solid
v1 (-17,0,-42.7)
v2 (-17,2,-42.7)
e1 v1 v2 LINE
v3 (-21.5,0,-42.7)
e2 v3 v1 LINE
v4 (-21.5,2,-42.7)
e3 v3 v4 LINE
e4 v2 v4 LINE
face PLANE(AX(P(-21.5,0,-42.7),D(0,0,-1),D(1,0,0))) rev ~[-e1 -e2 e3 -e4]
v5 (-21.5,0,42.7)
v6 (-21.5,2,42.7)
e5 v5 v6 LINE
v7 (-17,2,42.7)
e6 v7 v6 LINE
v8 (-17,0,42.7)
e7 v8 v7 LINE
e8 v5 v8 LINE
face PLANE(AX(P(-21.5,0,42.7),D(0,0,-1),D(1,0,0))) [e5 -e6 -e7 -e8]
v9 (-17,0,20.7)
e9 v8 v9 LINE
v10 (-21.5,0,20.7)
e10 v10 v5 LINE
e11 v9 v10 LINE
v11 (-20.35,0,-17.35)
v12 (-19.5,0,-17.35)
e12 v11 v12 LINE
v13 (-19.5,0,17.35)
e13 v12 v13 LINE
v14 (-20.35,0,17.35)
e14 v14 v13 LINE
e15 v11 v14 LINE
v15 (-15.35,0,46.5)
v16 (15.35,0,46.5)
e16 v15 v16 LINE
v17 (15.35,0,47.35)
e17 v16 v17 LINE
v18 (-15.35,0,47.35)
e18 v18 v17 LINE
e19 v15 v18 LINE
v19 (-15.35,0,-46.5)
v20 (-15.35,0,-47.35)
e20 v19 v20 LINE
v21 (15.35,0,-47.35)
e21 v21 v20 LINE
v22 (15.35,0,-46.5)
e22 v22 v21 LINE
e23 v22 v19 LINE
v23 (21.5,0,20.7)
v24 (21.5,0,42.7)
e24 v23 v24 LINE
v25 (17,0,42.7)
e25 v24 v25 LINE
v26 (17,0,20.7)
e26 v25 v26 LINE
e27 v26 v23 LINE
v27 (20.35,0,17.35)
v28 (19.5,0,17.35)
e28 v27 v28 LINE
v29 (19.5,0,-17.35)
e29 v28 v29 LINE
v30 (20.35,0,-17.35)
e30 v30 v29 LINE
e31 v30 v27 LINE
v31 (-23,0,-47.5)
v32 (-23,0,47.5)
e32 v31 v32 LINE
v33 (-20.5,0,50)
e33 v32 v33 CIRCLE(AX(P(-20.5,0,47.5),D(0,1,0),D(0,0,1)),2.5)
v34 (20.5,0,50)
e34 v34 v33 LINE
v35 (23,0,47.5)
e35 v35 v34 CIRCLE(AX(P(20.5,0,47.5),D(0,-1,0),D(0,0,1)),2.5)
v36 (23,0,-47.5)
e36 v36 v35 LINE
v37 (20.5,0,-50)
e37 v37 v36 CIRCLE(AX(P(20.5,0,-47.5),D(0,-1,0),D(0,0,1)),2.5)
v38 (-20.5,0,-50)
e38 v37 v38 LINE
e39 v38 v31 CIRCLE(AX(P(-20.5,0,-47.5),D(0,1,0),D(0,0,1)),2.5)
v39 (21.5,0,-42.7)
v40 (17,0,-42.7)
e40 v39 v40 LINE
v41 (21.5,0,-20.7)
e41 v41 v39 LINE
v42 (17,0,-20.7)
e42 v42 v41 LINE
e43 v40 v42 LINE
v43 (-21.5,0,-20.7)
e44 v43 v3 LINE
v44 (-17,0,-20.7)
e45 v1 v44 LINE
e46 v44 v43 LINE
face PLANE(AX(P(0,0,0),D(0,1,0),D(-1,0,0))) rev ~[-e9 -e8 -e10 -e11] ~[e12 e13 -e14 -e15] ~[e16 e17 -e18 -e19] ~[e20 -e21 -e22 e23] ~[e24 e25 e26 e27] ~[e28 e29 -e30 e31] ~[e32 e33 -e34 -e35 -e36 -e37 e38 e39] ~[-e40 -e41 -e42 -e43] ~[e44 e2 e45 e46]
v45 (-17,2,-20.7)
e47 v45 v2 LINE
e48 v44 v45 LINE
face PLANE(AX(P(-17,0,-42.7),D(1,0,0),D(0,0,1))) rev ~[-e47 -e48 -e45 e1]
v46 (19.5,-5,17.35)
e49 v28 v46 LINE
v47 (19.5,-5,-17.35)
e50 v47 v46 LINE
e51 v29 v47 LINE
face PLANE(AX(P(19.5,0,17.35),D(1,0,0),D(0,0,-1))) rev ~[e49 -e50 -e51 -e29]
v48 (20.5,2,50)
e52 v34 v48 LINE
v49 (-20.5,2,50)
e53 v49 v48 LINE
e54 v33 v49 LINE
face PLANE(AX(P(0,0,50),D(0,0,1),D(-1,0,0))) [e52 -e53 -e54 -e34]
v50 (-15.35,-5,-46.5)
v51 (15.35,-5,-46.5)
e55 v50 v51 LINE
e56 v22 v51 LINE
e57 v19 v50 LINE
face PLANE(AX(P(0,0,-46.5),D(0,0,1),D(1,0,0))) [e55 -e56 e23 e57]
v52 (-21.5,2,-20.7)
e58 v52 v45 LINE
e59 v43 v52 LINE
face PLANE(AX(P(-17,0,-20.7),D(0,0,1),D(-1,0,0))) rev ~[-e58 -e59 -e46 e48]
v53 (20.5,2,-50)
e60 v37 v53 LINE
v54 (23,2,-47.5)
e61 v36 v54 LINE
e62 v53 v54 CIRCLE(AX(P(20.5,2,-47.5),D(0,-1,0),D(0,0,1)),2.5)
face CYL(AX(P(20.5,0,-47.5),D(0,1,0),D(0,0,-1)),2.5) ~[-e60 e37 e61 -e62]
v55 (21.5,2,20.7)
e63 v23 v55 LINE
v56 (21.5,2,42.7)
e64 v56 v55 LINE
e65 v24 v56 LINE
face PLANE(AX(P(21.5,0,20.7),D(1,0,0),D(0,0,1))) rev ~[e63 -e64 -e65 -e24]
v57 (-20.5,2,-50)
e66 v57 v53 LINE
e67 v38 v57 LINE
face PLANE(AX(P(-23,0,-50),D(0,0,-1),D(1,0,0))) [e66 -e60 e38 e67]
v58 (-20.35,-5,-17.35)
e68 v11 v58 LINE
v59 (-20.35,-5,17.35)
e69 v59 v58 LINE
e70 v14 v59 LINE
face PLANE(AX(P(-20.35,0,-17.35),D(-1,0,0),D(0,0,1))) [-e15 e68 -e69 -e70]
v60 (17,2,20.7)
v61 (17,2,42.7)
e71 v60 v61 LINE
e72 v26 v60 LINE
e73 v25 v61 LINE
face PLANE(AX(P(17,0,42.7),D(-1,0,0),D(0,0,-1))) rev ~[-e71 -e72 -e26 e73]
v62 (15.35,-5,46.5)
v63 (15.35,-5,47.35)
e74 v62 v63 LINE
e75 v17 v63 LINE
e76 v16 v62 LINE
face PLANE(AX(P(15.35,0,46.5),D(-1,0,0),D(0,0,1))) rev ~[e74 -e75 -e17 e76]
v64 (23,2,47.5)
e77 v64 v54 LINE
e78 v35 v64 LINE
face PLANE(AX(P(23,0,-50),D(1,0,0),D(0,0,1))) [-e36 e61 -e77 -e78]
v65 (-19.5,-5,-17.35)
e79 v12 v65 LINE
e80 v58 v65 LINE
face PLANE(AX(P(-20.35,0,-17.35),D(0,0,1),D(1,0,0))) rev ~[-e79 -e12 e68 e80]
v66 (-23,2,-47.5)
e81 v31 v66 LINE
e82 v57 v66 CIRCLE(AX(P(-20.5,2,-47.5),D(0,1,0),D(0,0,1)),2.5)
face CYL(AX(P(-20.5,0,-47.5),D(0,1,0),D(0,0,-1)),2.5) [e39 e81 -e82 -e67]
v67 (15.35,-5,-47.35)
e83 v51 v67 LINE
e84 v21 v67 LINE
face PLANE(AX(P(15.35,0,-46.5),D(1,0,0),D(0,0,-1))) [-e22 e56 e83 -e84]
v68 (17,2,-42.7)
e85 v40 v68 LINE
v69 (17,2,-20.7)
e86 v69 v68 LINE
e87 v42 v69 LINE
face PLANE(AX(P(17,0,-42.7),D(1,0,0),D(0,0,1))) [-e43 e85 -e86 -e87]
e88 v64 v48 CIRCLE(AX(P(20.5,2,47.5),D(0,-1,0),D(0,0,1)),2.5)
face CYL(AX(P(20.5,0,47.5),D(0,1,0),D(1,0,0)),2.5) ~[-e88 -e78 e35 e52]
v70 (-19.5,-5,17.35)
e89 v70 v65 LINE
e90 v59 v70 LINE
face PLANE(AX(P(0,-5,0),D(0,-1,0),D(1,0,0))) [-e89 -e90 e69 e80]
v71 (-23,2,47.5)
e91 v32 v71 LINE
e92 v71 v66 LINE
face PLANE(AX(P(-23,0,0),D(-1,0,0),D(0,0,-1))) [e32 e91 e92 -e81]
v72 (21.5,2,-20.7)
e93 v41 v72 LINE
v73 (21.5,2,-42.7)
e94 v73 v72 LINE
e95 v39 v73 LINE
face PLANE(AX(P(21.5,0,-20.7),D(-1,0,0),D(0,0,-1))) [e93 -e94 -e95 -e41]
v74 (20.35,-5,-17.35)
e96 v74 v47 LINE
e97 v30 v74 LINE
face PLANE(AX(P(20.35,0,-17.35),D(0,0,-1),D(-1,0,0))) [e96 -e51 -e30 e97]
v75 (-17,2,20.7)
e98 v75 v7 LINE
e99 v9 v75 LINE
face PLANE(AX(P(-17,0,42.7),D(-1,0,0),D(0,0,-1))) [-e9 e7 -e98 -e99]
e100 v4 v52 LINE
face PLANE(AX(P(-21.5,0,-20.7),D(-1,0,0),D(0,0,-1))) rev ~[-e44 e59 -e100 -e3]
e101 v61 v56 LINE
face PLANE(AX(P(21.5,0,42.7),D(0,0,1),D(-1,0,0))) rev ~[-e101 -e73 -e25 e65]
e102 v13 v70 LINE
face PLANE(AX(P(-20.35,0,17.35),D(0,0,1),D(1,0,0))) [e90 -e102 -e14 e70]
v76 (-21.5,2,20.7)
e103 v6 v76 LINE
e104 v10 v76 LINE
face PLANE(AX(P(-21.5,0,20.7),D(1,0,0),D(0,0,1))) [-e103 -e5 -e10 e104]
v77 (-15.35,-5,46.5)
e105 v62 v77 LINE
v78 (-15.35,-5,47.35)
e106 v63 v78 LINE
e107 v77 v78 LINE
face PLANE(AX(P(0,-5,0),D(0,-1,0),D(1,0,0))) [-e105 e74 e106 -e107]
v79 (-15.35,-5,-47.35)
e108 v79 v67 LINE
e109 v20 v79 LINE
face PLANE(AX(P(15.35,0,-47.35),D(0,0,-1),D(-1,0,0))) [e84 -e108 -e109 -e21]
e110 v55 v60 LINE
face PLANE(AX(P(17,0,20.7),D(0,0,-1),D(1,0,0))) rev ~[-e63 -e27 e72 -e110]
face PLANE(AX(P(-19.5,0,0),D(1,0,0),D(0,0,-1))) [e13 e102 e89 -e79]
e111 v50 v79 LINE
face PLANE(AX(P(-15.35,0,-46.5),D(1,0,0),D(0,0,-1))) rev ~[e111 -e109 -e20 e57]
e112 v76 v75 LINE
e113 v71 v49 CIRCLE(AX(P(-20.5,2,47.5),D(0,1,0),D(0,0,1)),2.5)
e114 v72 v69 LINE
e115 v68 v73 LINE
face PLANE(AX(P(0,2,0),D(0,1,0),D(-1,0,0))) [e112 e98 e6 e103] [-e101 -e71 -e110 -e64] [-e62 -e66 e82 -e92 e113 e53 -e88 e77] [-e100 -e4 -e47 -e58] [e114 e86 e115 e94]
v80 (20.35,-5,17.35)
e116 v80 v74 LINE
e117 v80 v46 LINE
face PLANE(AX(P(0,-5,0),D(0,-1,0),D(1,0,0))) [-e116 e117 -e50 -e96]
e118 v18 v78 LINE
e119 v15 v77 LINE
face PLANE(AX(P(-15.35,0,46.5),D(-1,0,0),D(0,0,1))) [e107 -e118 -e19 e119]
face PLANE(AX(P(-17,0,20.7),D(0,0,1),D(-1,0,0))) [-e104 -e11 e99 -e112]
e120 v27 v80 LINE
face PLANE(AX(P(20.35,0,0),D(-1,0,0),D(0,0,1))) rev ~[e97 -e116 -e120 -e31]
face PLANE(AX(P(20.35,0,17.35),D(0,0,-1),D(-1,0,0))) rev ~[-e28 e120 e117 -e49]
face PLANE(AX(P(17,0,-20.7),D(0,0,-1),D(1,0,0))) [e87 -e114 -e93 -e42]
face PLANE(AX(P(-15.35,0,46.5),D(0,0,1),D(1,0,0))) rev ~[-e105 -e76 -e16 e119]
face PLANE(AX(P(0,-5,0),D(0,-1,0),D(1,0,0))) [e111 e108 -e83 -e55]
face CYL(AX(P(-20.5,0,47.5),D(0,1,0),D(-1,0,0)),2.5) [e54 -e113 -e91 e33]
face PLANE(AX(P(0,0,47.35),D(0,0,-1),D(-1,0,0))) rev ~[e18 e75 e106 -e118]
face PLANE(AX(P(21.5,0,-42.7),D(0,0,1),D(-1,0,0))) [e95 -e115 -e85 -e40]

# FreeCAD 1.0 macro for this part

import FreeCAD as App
import Part
import Sketcher
Q = App.Units.Quantity


def edges_at(feature, points):
    """Names of the edges that pass closest to the given points."""
    edges = feature.Shape.Edges
    near = lambda p: min(range(len(edges)), key=lambda i: edges[i].distToShape(Part.Vertex(*p))[0])
    return sorted({f"Edge{near(p) + 1}" for p in points})

doc = App.newDocument("Part")
body = doc.addObject("PartDesign::Body", "Body")

sketch1 = body.newObject("Sketcher::SketchObject", "Sketch")
sketch1.AttachmentSupport = (doc.getObject("XZ_Plane"), [""])
sketch1.MapMode = "FlatFace"
sketch1.addGeometry([
    Part.LineSegment(App.Vector(-23, -50, 0), App.Vector(-23, 50, 0)),
    Part.LineSegment(App.Vector(-23, 50, 0), App.Vector(23, 50, 0)),
    Part.LineSegment(App.Vector(23, 50, 0), App.Vector(23, -50, 0)),
    Part.LineSegment(App.Vector(23, -50, 0), App.Vector(-23, -50, 0)),
], False)
sketch1.addConstraint([
    Sketcher.Constraint("Coincident", 0, 2, 1, 1),
    Sketcher.Constraint("Coincident", 1, 2, 2, 1),
    Sketcher.Constraint("Coincident", 2, 2, 3, 1),
    Sketcher.Constraint("Coincident", 3, 2, 0, 1),
    Sketcher.Constraint("Vertical", 0),
    Sketcher.Constraint("Horizontal", 1),
    Sketcher.Constraint("Vertical", 2),
    Sketcher.Constraint("Horizontal", 3),
    Sketcher.Constraint("Symmetric", 0, 2, 2, 2, -1, 1),
    Sketcher.Constraint("DistanceX", 1, 1, 1, 2, Q("46 mm")),
    Sketcher.Constraint("DistanceY", 0, 1, 0, 2, Q("100 mm")),
])
pad1 = body.newObject("PartDesign::Pad", "Pad")
pad1.Profile = sketch1
pad1.Length = 2
pad1.Reversed = True
doc.recompute()

fillet = body.newObject("PartDesign::Fillet", "Fillet")
fillet.Base = (pad1, edges_at(pad1, [
    (-23, 1, -50),
    (-23, 1, 50),
    (23, 1, -50),
    (23, 1, 50),
]))
fillet.Radius = 2.5

sketch2 = body.newObject("Sketcher::SketchObject", "Sketch001")
sketch2.AttachmentSupport = (doc.getObject("XZ_Plane"), [""])
sketch2.MapMode = "FlatFace"
sketch2.addGeometry([
    Part.LineSegment(App.Vector(17, -42.7, 0), App.Vector(21.5, -42.7, 0)),
    Part.LineSegment(App.Vector(21.5, -42.7, 0), App.Vector(21.5, -20.7, 0)),
    Part.LineSegment(App.Vector(21.5, -20.7, 0), App.Vector(17, -20.7, 0)),
    Part.LineSegment(App.Vector(17, -20.7, 0), App.Vector(17, -42.7, 0)),
    Part.LineSegment(App.Vector(-21.5, -20.7, 0), App.Vector(-21.5, -42.7, 0)),
    Part.LineSegment(App.Vector(-21.5, -42.7, 0), App.Vector(-17, -42.7, 0)),
    Part.LineSegment(App.Vector(-17, -42.7, 0), App.Vector(-17, -20.7, 0)),
    Part.LineSegment(App.Vector(-17, -20.7, 0), App.Vector(-21.5, -20.7, 0)),
    Part.LineSegment(App.Vector(21.5, 20.7, 0), App.Vector(21.5, 42.7, 0)),
    Part.LineSegment(App.Vector(21.5, 42.7, 0), App.Vector(17, 42.7, 0)),
    Part.LineSegment(App.Vector(17, 42.7, 0), App.Vector(17, 20.7, 0)),
    Part.LineSegment(App.Vector(17, 20.7, 0), App.Vector(21.5, 20.7, 0)),
    Part.LineSegment(App.Vector(-17, 42.7, 0), App.Vector(-21.5, 42.7, 0)),
    Part.LineSegment(App.Vector(-21.5, 42.7, 0), App.Vector(-21.5, 20.7, 0)),
    Part.LineSegment(App.Vector(-21.5, 20.7, 0), App.Vector(-17, 20.7, 0)),
    Part.LineSegment(App.Vector(-17, 20.7, 0), App.Vector(-17, 42.7, 0)),
], False)
sketch2.addConstraint([
    Sketcher.Constraint("Coincident", 0, 2, 1, 1),
    Sketcher.Constraint("Coincident", 1, 2, 2, 1),
    Sketcher.Constraint("Coincident", 2, 2, 3, 1),
    Sketcher.Constraint("Coincident", 3, 2, 0, 1),
    Sketcher.Constraint("Coincident", 4, 2, 5, 1),
    Sketcher.Constraint("Coincident", 5, 2, 6, 1),
    Sketcher.Constraint("Coincident", 6, 2, 7, 1),
    Sketcher.Constraint("Coincident", 7, 2, 4, 1),
    Sketcher.Constraint("Coincident", 8, 2, 9, 1),
    Sketcher.Constraint("Coincident", 9, 2, 10, 1),
    Sketcher.Constraint("Coincident", 10, 2, 11, 1),
    Sketcher.Constraint("Coincident", 11, 2, 8, 1),
    Sketcher.Constraint("Coincident", 12, 2, 13, 1),
    Sketcher.Constraint("Coincident", 13, 2, 14, 1),
    Sketcher.Constraint("Coincident", 14, 2, 15, 1),
    Sketcher.Constraint("Coincident", 15, 2, 12, 1),
    Sketcher.Constraint("Horizontal", 0),
    Sketcher.Constraint("Vertical", 1),
    Sketcher.Constraint("Horizontal", 2),
    Sketcher.Constraint("Vertical", 3),
    Sketcher.Constraint("Vertical", 4),
    Sketcher.Constraint("Horizontal", 5),
    Sketcher.Constraint("Vertical", 6),
    Sketcher.Constraint("Horizontal", 7),
    Sketcher.Constraint("Vertical", 8),
    Sketcher.Constraint("Horizontal", 9),
    Sketcher.Constraint("Vertical", 10),
    Sketcher.Constraint("Horizontal", 11),
    Sketcher.Constraint("Horizontal", 12),
    Sketcher.Constraint("Vertical", 13),
    Sketcher.Constraint("Horizontal", 14),
    Sketcher.Constraint("Vertical", 15),
    Sketcher.Constraint("Symmetric", 4, 2, 8, 2, -1, 1),
    Sketcher.Constraint("Symmetric", 6, 2, 10, 2, -1, 1),
    Sketcher.Constraint("Symmetric", 0, 2, 12, 2, -1, 1),
    Sketcher.Constraint("Symmetric", 2, 2, 14, 2, -1, 1),
    Sketcher.Constraint("Symmetric", 0, 2, 4, 2, -2),
    Sketcher.Constraint("Symmetric", 2, 2, 6, 2, -2),
    Sketcher.Constraint("DistanceY", 1, 1, 1, 2, Q("22 mm")),
    Sketcher.Constraint("DistanceX", 0, 1, 0, 2, Q("4.5 mm")),
    Sketcher.Constraint("DistanceX", -1, 1, 2, 2, Q("17 mm")),
    Sketcher.Constraint("DistanceY", 0, 2, -1, 1, Q("42.7 mm")),
])
pocket1 = body.newObject("PartDesign::Pocket", "Pocket")
pocket1.Profile = sketch2
pocket1.Type = "ThroughAll"

sketch3 = body.newObject("Sketcher::SketchObject", "Sketch002")
sketch3.AttachmentSupport = (doc.getObject("XZ_Plane"), [""])
sketch3.MapMode = "FlatFace"
sketch3.addGeometry([
    Part.LineSegment(App.Vector(20.4, 17.4, 0), App.Vector(19.5, 17.4, 0)),
    Part.LineSegment(App.Vector(19.5, 17.4, 0), App.Vector(19.5, -17.4, 0)),
    Part.LineSegment(App.Vector(19.5, -17.4, 0), App.Vector(20.4, -17.4, 0)),
    Part.LineSegment(App.Vector(20.4, -17.4, 0), App.Vector(20.4, 17.4, 0)),
    Part.LineSegment(App.Vector(15.3, -46.5, 0), App.Vector(-15.3, -46.5, 0)),
    Part.LineSegment(App.Vector(-15.3, -46.5, 0), App.Vector(-15.3, -47.4, 0)),
    Part.LineSegment(App.Vector(-15.3, -47.4, 0), App.Vector(15.3, -47.4, 0)),
    Part.LineSegment(App.Vector(15.3, -47.4, 0), App.Vector(15.3, -46.5, 0)),
    Part.LineSegment(App.Vector(-19.5, -17.4, 0), App.Vector(-19.5, 17.4, 0)),
    Part.LineSegment(App.Vector(-19.5, 17.4, 0), App.Vector(-20.4, 17.4, 0)),
    Part.LineSegment(App.Vector(-20.4, 17.4, 0), App.Vector(-20.4, -17.4, 0)),
    Part.LineSegment(App.Vector(-20.4, -17.4, 0), App.Vector(-19.5, -17.4, 0)),
    Part.LineSegment(App.Vector(-15.3, 46.5, 0), App.Vector(15.3, 46.5, 0)),
    Part.LineSegment(App.Vector(15.3, 46.5, 0), App.Vector(15.3, 47.4, 0)),
    Part.LineSegment(App.Vector(15.3, 47.4, 0), App.Vector(-15.3, 47.4, 0)),
    Part.LineSegment(App.Vector(-15.3, 47.4, 0), App.Vector(-15.3, 46.5, 0)),
], False)
sketch3.addConstraint([
    Sketcher.Constraint("Coincident", 0, 2, 1, 1),
    Sketcher.Constraint("Coincident", 1, 2, 2, 1),
    Sketcher.Constraint("Coincident", 2, 2, 3, 1),
    Sketcher.Constraint("Coincident", 3, 2, 0, 1),
    Sketcher.Constraint("Coincident", 4, 2, 5, 1),
    Sketcher.Constraint("Coincident", 5, 2, 6, 1),
    Sketcher.Constraint("Coincident", 6, 2, 7, 1),
    Sketcher.Constraint("Coincident", 7, 2, 4, 1),
    Sketcher.Constraint("Coincident", 8, 2, 9, 1),
    Sketcher.Constraint("Coincident", 9, 2, 10, 1),
    Sketcher.Constraint("Coincident", 10, 2, 11, 1),
    Sketcher.Constraint("Coincident", 11, 2, 8, 1),
    Sketcher.Constraint("Coincident", 12, 2, 13, 1),
    Sketcher.Constraint("Coincident", 13, 2, 14, 1),
    Sketcher.Constraint("Coincident", 14, 2, 15, 1),
    Sketcher.Constraint("Coincident", 15, 2, 12, 1),
    Sketcher.Constraint("Horizontal", 0),
    Sketcher.Constraint("Vertical", 1),
    Sketcher.Constraint("Horizontal", 2),
    Sketcher.Constraint("Vertical", 3),
    Sketcher.Constraint("Horizontal", 4),
    Sketcher.Constraint("Vertical", 5),
    Sketcher.Constraint("Horizontal", 6),
    Sketcher.Constraint("Vertical", 7),
    Sketcher.Constraint("Vertical", 8),
    Sketcher.Constraint("Horizontal", 9),
    Sketcher.Constraint("Vertical", 10),
    Sketcher.Constraint("Horizontal", 11),
    Sketcher.Constraint("Horizontal", 12),
    Sketcher.Constraint("Vertical", 13),
    Sketcher.Constraint("Horizontal", 14),
    Sketcher.Constraint("Vertical", 15),
    Sketcher.Constraint("Symmetric", 1, 2, 8, 2, -1, 1),
    Sketcher.Constraint("Symmetric", 3, 2, 10, 2, -1, 1),
    Sketcher.Constraint("Symmetric", 4, 2, 12, 2, -1, 1),
    Sketcher.Constraint("Symmetric", 6, 2, 14, 2, -1, 1),
    Sketcher.Constraint("Horizontal", 3, 2, 8, 2),
    Sketcher.Constraint("Vertical", 7, 2, 12, 2),
    Sketcher.Constraint("Equal", 11, 5),
    Sketcher.Constraint("DistanceX", 0, 2, 0, 1, Q("0.85 mm")),
    Sketcher.Constraint("DistanceX", 4, 2, 4, 1, Q("30.7 mm")),
    Sketcher.Constraint("DistanceY", 1, 2, 1, 1, Q("34.7 mm")),
    Sketcher.Constraint("DistanceY", 5, 2, 1, 2, Q("30 mm")),
    Sketcher.Constraint("DistanceX", 6, 2, 2, 2, Q("5 mm")),
])
pad2 = body.newObject("PartDesign::Pad", "Pad001")
pad2.Profile = sketch3
pad2.Length = 5

doc.recompute()
